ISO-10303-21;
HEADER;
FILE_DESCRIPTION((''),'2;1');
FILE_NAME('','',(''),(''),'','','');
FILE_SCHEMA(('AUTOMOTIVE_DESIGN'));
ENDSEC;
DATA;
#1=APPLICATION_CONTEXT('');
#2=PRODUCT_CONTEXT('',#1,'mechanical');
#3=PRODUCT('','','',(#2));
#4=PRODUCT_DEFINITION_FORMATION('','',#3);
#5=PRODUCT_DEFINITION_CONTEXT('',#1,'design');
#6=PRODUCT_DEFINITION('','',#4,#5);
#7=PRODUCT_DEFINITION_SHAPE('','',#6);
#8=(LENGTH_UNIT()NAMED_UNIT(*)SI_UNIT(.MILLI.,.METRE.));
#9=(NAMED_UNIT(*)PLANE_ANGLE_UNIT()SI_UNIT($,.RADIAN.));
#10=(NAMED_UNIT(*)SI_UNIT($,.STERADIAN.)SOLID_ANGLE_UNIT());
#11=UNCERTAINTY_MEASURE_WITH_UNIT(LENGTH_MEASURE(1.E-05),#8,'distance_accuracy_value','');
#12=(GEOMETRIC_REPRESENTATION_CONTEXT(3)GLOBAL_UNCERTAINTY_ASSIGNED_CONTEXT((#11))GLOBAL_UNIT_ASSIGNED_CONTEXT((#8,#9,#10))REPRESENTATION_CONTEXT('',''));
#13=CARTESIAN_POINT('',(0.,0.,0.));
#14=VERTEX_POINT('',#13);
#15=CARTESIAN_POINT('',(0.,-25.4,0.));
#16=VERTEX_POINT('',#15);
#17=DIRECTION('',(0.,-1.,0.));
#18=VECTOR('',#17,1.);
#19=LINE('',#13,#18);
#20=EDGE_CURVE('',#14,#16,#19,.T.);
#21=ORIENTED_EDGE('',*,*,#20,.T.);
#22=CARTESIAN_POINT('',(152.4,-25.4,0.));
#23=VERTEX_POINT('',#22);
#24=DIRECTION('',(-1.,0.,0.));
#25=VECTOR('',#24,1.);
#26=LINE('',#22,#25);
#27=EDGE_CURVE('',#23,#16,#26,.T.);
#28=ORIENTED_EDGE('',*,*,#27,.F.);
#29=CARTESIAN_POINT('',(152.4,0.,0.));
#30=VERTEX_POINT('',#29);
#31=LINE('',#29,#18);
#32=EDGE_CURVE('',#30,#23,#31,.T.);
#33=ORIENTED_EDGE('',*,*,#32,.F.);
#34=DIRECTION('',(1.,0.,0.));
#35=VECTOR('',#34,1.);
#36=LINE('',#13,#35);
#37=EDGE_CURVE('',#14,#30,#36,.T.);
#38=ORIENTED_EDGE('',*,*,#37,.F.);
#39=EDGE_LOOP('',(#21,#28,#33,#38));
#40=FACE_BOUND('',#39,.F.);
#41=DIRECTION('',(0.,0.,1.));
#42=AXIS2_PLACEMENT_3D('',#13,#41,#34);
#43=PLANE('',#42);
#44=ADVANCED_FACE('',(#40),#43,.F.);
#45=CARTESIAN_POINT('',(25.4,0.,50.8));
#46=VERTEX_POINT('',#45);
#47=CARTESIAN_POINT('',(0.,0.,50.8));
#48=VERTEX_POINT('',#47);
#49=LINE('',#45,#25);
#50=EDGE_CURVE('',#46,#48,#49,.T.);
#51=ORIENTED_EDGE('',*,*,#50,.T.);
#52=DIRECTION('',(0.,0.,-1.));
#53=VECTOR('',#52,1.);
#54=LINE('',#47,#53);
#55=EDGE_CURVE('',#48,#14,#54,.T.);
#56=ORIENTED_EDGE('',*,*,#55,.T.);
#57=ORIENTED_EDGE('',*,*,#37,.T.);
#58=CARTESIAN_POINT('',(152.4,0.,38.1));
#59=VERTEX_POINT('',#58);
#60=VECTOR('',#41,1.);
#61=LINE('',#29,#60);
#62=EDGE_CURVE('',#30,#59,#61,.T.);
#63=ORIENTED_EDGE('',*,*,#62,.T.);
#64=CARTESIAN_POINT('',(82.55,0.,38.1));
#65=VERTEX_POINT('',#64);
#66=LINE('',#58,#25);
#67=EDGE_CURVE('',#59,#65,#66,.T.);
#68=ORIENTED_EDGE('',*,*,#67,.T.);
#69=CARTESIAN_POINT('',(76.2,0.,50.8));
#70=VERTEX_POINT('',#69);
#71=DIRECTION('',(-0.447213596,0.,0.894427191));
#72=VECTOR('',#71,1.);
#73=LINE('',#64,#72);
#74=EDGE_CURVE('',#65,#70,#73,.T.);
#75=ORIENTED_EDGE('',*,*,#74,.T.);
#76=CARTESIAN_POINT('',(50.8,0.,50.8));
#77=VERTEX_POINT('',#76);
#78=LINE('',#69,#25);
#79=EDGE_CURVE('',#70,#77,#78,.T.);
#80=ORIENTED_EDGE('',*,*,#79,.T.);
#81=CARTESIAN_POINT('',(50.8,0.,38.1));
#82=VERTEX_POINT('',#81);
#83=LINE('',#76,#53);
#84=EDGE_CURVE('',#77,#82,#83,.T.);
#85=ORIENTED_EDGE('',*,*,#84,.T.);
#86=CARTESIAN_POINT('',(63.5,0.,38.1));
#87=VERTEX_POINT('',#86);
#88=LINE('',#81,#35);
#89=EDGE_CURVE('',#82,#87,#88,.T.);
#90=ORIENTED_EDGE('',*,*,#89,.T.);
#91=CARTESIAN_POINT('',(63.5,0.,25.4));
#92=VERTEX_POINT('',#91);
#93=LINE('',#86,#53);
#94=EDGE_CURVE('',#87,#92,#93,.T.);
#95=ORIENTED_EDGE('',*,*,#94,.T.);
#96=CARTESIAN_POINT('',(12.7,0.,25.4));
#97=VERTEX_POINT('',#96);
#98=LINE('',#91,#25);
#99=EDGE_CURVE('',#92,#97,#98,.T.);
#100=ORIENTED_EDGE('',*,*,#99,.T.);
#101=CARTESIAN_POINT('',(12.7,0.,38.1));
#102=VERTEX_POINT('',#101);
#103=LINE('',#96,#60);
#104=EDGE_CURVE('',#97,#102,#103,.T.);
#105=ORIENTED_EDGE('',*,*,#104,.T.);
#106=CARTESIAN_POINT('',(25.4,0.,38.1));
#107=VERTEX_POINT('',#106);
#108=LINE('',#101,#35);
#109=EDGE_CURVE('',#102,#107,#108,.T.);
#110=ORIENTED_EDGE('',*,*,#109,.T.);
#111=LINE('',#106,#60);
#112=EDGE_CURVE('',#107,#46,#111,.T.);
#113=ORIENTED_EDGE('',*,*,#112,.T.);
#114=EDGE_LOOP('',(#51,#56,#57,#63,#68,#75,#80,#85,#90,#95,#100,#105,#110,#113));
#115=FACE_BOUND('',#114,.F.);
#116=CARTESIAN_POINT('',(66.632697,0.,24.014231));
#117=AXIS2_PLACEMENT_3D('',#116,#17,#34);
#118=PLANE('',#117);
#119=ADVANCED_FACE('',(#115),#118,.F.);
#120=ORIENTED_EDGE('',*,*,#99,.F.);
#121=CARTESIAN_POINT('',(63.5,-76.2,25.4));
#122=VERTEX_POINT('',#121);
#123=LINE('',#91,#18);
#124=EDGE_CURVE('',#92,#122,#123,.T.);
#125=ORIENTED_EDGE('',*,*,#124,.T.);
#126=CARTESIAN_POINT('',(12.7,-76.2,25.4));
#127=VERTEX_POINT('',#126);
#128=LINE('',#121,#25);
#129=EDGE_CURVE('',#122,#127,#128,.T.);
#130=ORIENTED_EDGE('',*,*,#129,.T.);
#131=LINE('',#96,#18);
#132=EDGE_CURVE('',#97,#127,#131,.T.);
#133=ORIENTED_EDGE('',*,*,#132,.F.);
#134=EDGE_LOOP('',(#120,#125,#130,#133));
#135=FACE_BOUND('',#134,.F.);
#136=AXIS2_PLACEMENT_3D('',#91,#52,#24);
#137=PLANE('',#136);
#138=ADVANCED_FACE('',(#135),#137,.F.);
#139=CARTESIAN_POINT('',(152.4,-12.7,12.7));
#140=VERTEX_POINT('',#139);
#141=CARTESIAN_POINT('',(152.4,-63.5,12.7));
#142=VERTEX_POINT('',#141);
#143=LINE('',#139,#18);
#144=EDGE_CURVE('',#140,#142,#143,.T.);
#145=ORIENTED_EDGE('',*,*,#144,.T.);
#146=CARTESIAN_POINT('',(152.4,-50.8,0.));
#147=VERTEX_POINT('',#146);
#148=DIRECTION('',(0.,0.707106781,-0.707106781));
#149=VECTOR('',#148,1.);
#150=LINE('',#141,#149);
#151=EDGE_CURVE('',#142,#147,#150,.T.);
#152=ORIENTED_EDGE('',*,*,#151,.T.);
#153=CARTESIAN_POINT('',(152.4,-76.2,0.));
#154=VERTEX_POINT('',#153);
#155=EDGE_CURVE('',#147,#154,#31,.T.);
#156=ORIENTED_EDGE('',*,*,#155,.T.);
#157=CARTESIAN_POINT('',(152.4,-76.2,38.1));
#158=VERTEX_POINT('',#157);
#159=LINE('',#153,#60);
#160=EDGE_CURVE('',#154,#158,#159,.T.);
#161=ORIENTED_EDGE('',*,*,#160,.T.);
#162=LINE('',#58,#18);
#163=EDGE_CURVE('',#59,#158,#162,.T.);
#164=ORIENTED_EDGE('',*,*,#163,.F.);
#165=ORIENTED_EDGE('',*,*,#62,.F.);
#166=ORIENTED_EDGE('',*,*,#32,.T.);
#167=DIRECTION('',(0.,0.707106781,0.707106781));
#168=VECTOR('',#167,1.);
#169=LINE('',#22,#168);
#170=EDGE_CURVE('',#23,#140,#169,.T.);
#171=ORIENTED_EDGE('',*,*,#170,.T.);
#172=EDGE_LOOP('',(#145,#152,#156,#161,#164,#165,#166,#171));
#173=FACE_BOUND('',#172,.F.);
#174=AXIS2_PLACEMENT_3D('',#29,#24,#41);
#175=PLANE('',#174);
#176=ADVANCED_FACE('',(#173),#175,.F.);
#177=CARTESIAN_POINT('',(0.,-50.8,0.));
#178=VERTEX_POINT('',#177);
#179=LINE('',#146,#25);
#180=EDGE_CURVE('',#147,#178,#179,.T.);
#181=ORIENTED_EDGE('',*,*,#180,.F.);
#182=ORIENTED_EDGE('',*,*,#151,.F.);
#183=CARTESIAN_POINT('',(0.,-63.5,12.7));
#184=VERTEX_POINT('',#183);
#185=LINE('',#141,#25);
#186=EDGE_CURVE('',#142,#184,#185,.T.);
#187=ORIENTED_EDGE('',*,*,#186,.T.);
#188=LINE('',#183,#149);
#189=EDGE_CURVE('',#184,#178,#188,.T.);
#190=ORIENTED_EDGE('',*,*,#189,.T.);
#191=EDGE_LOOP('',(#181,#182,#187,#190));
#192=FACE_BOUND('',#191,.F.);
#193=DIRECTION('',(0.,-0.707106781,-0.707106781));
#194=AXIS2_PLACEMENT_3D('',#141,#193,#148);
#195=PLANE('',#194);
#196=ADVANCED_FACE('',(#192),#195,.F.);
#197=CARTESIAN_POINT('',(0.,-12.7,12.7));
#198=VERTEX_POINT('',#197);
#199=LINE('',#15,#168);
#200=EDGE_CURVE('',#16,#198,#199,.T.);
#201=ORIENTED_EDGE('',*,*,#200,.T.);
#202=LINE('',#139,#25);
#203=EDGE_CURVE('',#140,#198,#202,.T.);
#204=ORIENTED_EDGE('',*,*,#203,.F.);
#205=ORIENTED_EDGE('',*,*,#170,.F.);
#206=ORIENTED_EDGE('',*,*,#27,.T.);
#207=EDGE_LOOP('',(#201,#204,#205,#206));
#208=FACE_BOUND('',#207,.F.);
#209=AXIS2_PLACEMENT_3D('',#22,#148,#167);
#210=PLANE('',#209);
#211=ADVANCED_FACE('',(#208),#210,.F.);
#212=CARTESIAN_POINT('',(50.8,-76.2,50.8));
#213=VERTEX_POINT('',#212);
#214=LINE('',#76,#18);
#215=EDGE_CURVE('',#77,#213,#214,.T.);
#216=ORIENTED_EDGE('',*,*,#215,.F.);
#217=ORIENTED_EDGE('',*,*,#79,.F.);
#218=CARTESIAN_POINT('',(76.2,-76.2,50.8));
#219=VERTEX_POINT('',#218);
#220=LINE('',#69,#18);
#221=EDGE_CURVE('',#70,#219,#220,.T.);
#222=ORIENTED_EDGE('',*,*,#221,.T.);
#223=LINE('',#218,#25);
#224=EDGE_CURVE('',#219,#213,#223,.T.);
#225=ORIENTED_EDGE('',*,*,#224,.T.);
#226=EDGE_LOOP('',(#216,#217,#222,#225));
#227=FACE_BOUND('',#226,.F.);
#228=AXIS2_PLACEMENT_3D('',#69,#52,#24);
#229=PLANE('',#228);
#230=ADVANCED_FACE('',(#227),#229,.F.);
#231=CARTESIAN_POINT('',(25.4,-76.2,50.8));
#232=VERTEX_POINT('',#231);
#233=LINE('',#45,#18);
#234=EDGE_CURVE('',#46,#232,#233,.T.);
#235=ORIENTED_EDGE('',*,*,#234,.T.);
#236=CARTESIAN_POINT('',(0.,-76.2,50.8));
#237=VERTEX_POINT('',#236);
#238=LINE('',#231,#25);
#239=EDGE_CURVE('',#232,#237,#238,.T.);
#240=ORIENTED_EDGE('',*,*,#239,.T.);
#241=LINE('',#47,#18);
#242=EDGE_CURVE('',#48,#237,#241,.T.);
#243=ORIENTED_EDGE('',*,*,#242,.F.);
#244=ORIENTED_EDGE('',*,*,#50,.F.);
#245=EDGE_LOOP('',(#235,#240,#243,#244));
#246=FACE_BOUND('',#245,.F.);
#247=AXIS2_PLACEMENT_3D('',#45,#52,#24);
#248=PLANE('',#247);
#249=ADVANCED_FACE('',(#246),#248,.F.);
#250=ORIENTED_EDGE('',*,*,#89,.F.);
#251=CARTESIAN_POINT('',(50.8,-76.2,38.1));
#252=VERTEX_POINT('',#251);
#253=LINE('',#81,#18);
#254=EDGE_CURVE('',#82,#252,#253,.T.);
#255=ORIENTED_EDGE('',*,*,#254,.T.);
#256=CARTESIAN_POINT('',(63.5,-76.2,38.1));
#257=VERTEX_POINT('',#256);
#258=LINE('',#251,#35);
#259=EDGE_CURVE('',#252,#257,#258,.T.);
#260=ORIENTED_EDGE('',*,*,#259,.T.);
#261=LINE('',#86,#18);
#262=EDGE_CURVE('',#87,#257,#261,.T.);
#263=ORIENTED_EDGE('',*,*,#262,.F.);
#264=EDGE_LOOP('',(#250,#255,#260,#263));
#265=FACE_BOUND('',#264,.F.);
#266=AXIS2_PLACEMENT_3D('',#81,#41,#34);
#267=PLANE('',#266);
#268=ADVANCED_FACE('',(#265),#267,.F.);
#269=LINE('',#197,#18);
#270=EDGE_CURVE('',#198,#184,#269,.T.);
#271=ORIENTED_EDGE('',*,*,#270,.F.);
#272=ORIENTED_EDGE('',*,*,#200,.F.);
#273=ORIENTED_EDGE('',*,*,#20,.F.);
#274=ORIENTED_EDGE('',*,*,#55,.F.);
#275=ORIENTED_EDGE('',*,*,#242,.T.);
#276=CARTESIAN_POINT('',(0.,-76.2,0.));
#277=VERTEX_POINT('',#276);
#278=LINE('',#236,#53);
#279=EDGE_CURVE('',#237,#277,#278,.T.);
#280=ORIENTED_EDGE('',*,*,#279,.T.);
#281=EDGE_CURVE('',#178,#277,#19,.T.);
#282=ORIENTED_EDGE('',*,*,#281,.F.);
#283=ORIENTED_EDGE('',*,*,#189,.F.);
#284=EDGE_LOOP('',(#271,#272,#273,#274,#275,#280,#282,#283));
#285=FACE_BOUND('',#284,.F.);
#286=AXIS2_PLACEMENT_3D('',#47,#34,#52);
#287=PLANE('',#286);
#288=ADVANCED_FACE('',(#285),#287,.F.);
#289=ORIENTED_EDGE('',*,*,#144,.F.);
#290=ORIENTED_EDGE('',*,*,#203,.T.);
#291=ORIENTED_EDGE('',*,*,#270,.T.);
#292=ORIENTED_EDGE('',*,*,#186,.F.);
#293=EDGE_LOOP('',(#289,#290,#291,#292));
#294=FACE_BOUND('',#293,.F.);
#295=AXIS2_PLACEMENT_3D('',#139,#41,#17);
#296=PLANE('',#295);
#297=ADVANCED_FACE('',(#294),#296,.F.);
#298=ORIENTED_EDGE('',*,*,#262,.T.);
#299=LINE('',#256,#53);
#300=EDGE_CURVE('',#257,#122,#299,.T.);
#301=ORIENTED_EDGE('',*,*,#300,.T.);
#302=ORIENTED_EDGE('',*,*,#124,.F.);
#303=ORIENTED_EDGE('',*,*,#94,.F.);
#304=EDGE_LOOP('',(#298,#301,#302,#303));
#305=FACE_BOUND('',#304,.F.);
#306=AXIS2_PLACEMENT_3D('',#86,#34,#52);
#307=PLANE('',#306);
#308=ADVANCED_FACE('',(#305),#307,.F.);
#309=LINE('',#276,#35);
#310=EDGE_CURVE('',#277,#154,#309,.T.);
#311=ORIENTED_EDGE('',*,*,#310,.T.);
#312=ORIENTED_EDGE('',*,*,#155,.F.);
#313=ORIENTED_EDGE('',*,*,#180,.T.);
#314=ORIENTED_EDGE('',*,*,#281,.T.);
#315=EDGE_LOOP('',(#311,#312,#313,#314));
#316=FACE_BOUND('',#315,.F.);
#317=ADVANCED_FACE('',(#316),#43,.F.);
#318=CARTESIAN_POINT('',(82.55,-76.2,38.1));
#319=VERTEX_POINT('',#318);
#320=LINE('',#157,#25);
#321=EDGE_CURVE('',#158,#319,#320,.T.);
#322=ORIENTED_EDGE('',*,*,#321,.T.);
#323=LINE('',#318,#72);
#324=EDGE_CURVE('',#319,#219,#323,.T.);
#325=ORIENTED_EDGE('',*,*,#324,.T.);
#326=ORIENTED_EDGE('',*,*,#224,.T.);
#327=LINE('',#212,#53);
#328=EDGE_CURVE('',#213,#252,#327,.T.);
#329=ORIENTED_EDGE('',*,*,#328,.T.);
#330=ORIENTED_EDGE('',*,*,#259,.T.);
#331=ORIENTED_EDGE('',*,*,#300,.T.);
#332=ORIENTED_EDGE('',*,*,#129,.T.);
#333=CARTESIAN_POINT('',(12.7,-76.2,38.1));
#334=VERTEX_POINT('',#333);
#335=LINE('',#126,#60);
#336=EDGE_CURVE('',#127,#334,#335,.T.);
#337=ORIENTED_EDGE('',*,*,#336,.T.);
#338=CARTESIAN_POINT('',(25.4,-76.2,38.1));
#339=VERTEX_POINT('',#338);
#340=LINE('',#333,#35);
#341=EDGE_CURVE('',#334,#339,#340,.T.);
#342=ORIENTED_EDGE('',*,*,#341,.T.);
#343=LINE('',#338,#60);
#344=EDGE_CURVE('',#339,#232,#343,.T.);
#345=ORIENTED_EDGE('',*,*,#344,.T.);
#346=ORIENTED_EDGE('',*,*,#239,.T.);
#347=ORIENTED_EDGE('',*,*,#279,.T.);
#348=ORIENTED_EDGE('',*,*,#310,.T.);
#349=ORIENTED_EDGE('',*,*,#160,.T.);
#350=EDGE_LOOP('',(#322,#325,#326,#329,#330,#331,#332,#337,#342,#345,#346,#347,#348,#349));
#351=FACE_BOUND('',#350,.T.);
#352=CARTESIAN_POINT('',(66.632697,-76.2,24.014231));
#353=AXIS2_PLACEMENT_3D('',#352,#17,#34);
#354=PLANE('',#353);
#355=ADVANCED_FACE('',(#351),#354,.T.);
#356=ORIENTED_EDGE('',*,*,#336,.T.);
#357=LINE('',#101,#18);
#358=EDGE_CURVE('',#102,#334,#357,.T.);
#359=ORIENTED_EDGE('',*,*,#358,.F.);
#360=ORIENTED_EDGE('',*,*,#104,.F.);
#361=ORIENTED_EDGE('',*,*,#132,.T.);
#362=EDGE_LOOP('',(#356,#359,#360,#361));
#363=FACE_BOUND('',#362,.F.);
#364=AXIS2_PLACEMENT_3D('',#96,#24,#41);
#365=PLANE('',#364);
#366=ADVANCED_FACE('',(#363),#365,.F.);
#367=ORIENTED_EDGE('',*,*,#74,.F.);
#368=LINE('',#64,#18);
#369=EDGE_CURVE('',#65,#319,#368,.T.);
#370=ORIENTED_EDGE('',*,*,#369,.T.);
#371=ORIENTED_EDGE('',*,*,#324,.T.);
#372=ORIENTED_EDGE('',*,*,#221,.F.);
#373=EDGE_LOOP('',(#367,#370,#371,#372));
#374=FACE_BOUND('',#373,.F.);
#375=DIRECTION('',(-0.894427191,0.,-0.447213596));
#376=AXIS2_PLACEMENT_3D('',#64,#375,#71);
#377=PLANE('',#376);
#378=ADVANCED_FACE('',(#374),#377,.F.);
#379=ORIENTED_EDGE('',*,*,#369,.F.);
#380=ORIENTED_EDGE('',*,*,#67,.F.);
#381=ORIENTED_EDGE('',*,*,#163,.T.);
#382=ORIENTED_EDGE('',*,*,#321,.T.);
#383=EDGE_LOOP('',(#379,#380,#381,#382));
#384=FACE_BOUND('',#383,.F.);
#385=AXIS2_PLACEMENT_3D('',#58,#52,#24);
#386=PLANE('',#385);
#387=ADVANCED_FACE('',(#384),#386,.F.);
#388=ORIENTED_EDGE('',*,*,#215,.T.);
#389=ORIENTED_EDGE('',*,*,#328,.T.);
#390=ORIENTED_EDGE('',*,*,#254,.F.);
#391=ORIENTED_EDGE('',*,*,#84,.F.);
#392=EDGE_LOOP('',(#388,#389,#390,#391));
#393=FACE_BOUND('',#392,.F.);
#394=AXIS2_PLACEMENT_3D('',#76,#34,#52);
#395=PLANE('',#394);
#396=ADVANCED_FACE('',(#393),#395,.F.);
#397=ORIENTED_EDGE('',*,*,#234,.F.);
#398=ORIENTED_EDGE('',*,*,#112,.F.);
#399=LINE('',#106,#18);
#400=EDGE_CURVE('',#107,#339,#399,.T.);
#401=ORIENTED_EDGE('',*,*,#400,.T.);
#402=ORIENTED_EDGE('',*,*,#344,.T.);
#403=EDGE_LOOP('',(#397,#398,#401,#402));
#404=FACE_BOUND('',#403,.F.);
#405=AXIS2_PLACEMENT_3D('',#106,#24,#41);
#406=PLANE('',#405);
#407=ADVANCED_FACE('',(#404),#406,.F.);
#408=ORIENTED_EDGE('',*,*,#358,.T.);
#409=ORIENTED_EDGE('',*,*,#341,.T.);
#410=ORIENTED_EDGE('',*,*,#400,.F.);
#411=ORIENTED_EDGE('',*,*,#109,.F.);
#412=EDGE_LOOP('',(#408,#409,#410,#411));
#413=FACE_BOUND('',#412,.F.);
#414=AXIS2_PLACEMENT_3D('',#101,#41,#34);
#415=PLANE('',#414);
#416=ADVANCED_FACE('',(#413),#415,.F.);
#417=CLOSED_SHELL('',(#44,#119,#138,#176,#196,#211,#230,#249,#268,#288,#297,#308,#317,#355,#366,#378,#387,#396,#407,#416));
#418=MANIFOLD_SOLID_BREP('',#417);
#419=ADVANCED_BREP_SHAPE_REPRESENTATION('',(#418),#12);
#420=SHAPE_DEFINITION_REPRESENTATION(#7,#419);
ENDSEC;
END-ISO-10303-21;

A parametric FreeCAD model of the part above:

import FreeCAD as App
import Part
import Sketcher
Q = App.Units.Quantity

doc = App.newDocument("Part")
body = doc.addObject("PartDesign::Body", "Body")

# Sketch on XZ plane
sketch1 = body.newObject("Sketcher::SketchObject", "Sketch")
sketch1.AttachmentSupport = (doc.getObject("XZ_Plane"), [""])
sketch1.MapMode = "FlatFace"
sketch1.addGeometry(Part.LineSegment(App.Vector(0, 51, 0), App.Vector(0, 0, 0)), False)
sketch1.addGeometry(Part.LineSegment(App.Vector(0, 0, 0), App.Vector(152, 0, 0)), False)
sketch1.addGeometry(Part.LineSegment(App.Vector(152, 0, 0), App.Vector(152, 38, 0)), False)
sketch1.addGeometry(Part.LineSegment(App.Vector(152, 38, 0), App.Vector(83, 38, 0)), False)
sketch1.addGeometry(Part.LineSegment(App.Vector(83, 38, 0), App.Vector(76, 51, 0)), False)
sketch1.addGeometry(Part.LineSegment(App.Vector(76, 51, 0), App.Vector(51, 51, 0)), False)
sketch1.addGeometry(Part.LineSegment(App.Vector(51, 51, 0), App.Vector(51, 38, 0)), False)
sketch1.addGeometry(Part.LineSegment(App.Vector(51, 38, 0), App.Vector(64, 38, 0)), False)
sketch1.addGeometry(Part.LineSegment(App.Vector(64, 38, 0), App.Vector(64, 25, 0)), False)
sketch1.addGeometry(Part.LineSegment(App.Vector(64, 25, 0), App.Vector(13, 25, 0)), False)
sketch1.addGeometry(Part.LineSegment(App.Vector(13, 25, 0), App.Vector(13, 38, 0)), False)
sketch1.addGeometry(Part.LineSegment(App.Vector(13, 38, 0), App.Vector(25, 38, 0)), False)
sketch1.addGeometry(Part.LineSegment(App.Vector(25, 38, 0), App.Vector(25, 51, 0)), False)
sketch1.addGeometry(Part.LineSegment(App.Vector(25, 51, 0), App.Vector(0, 51, 0)), False)
sketch1.addConstraint(Sketcher.Constraint("Coincident", 0, 2, 1, 1))
sketch1.addConstraint(Sketcher.Constraint("Coincident", 1, 2, 2, 1))
sketch1.addConstraint(Sketcher.Constraint("Coincident", 2, 2, 3, 1))
sketch1.addConstraint(Sketcher.Constraint("Coincident", 3, 2, 4, 1))
sketch1.addConstraint(Sketcher.Constraint("Coincident", 4, 2, 5, 1))
sketch1.addConstraint(Sketcher.Constraint("Coincident", 5, 2, 6, 1))
sketch1.addConstraint(Sketcher.Constraint("Coincident", 6, 2, 7, 1))
sketch1.addConstraint(Sketcher.Constraint("Coincident", 7, 2, 8, 1))
sketch1.addConstraint(Sketcher.Constraint("Coincident", 8, 2, 9, 1))
sketch1.addConstraint(Sketcher.Constraint("Coincident", 9, 2, 10, 1))
sketch1.addConstraint(Sketcher.Constraint("Coincident", 10, 2, 11, 1))
sketch1.addConstraint(Sketcher.Constraint("Coincident", 11, 2, 12, 1))
sketch1.addConstraint(Sketcher.Constraint("Coincident", 12, 2, 13, 1))
sketch1.addConstraint(Sketcher.Constraint("Coincident", 13, 2, 0, 1))
sketch1.addConstraint(Sketcher.Constraint("Vertical", 0))
sketch1.addConstraint(Sketcher.Constraint("Horizontal", 1))
sketch1.addConstraint(Sketcher.Constraint("Vertical", 2))
sketch1.addConstraint(Sketcher.Constraint("Horizontal", 3))
sketch1.addConstraint(Sketcher.Constraint("Horizontal", 5))
sketch1.addConstraint(Sketcher.Constraint("Vertical", 6))
sketch1.addConstraint(Sketcher.Constraint("Horizontal", 7))
sketch1.addConstraint(Sketcher.Constraint("Vertical", 8))
sketch1.addConstraint(Sketcher.Constraint("Horizontal", 9))
sketch1.addConstraint(Sketcher.Constraint("Vertical", 10))
sketch1.addConstraint(Sketcher.Constraint("Horizontal", 11))
sketch1.addConstraint(Sketcher.Constraint("Vertical", 12))
sketch1.addConstraint(Sketcher.Constraint("Horizontal", 13))
sketch1.addConstraint(Sketcher.Constraint("Coincident", 0, 2, -1, 1))
sketch1.addConstraint(Sketcher.Constraint("Horizontal", 3, 2, 6, 2))
sketch1.addConstraint(Sketcher.Constraint("Horizontal", 7, 2, 10, 2))
sketch1.addConstraint(Sketcher.Constraint("Horizontal", 5, 2, 12, 2))
sketch1.addConstraint(Sketcher.Constraint("Equal", 7, 11))
sketch1.addConstraint(Sketcher.Constraint("Equal", 5, 13))
sketch1.addConstraint(Sketcher.Constraint("Equal", 9, 0))
sketch1.addConstraint(Sketcher.Constraint("Equal", 11, 6))
sketch1.addConstraint(Sketcher.Constraint("Equal", 6, 8))
sketch1.addConstraint(Sketcher.Constraint("DistanceX", 1, 1, 1, 2, Q("6 in")))
sketch1.addConstraint(Sketcher.Constraint("DistanceX", 5, 2, 5, 1, Q("1 in")))
sketch1.addConstraint(Sketcher.Constraint("DistanceX", 9, 2, 9, 1, Q("2 in")))
sketch1.addConstraint(Sketcher.Constraint("DistanceX", 7, 1, 7, 2, Q("0.5 in")))
sketch1.addConstraint(Sketcher.Constraint("DistanceX", 3, 2, 3, 1, Q("2.75 in")))
pad1 = body.newObject("PartDesign::Pad", "Pad")
pad1.Profile = sketch1
pad1.Length = Q("3 in")

# Sketch on YZ plane
sketch2 = body.newObject("Sketcher::SketchObject", "Sketch001")
sketch2.AttachmentSupport = (doc.getObject("YZ_Plane"), [""])
sketch2.MapMode = "FlatFace"
sketch2.AttachmentOffset = App.Placement(App.Vector(0, 0, 6 * 25.4), App.Rotation())
sketch2.addGeometry(Part.LineSegment(App.Vector(-25, 0, 0), App.Vector(-13, 13, 0)), False)
sketch2.addGeometry(Part.LineSegment(App.Vector(-13, 13, 0), App.Vector(-64, 13, 0)), False)
sketch2.addGeometry(Part.LineSegment(App.Vector(-64, 13, 0), App.Vector(-51, 0, 0)), False)
sketch2.addGeometry(Part.LineSegment(App.Vector(-51, 0, 0), App.Vector(-25, 0, 0)), False)
sketch2.addConstraint(Sketcher.Constraint("Coincident", 0, 2, 1, 1))
sketch2.addConstraint(Sketcher.Constraint("Coincident", 1, 2, 2, 1))
sketch2.addConstraint(Sketcher.Constraint("Coincident", 2, 2, 3, 1))
sketch2.addConstraint(Sketcher.Constraint("Coincident", 3, 2, 0, 1))
sketch2.addConstraint(Sketcher.Constraint("Horizontal", 1))
sketch2.addConstraint(Sketcher.Constraint("Horizontal", 3))
sketch2.addConstraint(Sketcher.Constraint("PointOnObject", 2, 2, -1))
sketch2.addConstraint(Sketcher.Constraint("Perpendicular", 0, 2))
sketch2.addConstraint(Sketcher.Constraint("Equal", 0, 2))
sketch2.addConstraint(Sketcher.Constraint("DistanceX", 1, 2, 1, 1, Q("2 in")))
sketch2.addConstraint(Sketcher.Constraint("DistanceX", 3, 1, 3, 2, Q("1 in")))
sketch2.addConstraint(Sketcher.Constraint("DistanceX", 2, 2, -1, 1, Q("2 in")))
pocket1 = body.newObject("PartDesign::Pocket", "Pocket")
pocket1.Profile = sketch2
pocket1.Length = Q("6 in")

doc.recompute()
